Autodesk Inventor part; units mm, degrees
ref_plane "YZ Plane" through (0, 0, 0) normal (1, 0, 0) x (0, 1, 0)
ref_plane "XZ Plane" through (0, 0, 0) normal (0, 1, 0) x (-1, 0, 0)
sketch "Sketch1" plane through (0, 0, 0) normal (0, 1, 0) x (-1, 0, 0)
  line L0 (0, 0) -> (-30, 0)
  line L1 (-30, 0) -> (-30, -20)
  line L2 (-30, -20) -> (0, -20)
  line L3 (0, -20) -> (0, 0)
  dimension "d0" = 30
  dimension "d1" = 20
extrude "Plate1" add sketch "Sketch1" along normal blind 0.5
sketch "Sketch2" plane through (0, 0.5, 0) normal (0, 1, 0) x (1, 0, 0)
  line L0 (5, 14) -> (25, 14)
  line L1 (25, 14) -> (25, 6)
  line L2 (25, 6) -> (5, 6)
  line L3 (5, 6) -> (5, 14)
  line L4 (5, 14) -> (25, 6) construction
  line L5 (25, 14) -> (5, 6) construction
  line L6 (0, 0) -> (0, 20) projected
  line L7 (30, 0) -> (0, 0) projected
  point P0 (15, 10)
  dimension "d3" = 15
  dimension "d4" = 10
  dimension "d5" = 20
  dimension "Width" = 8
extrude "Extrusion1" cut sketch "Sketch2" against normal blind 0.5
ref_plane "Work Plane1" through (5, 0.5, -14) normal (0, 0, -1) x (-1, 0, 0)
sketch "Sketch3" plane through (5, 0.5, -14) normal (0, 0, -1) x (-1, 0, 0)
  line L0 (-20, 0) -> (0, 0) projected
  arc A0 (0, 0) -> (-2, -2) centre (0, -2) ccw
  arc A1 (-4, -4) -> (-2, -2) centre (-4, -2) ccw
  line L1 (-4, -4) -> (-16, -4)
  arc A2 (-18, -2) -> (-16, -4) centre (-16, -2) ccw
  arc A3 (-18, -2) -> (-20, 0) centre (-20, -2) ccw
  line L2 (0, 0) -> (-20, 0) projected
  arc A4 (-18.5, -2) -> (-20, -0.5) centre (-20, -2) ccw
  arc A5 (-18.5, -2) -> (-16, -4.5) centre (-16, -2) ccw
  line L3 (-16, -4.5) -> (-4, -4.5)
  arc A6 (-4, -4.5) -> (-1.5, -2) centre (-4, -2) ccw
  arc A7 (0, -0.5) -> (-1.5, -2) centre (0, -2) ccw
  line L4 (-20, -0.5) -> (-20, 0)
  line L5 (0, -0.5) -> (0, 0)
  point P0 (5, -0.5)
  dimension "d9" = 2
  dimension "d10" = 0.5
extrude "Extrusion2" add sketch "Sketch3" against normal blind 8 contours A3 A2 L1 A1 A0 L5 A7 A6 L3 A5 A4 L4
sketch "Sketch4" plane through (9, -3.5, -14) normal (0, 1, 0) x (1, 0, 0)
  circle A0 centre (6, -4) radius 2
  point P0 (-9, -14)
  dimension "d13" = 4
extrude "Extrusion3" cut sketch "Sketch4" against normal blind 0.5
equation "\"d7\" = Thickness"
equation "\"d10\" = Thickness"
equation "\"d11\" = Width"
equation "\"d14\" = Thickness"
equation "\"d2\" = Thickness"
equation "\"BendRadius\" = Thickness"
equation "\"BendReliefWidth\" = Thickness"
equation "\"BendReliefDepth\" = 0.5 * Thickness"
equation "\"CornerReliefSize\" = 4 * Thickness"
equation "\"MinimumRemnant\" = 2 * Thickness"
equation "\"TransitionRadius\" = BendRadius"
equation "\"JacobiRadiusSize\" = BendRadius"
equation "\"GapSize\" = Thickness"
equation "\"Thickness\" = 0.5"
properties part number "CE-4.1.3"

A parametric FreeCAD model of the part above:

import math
import FreeCAD as App
import Part
import Sketcher
from FreeCAD import Vector

doc = App.newDocument("Part")
body = doc.addObject("PartDesign::Body", "Body")

# Sketch on XZ plane
sketch1 = body.newObject("Sketcher::SketchObject", "Sketch")
sketch1.AttachmentSupport = (doc.getObject("XZ_Plane"), [""])
sketch1.MapMode = "FlatFace"
sketch1.addGeometry([
    Part.LineSegment(Vector(0, -20, 0), Vector(0, 0, 0)),
    Part.LineSegment(Vector(0, 0, 0), Vector(30, 0, 0)),
    Part.LineSegment(Vector(30, 0, 0), Vector(30, -20, 0)),
    Part.LineSegment(Vector(30, -20, 0), Vector(0, -20, 0)),
], False)
sketch1.addConstraint([
    Sketcher.Constraint("Coincident", 0, 2, 1, 1),
    Sketcher.Constraint("Coincident", 1, 2, 2, 1),
    Sketcher.Constraint("Coincident", 2, 2, 3, 1),
    Sketcher.Constraint("Coincident", 3, 2, 0, 1),
    Sketcher.Constraint("Vertical", 0),
    Sketcher.Constraint("Horizontal", 1),
    Sketcher.Constraint("Vertical", 2),
    Sketcher.Constraint("Horizontal", 3),
    Sketcher.Constraint("Coincident", 0, 2, -1, 1),
    Sketcher.Constraint("DistanceX", 1, 1, 1, 2, 30.0),
    Sketcher.Constraint("DistanceY", 0, 1, 0, 2, 20.0),
])
pad1 = body.newObject("PartDesign::Pad", "Pad")
pad1.Profile = sketch1
pad1.Length = 0.5
pad1.Reversed = True

# Sketch on XZ plane
sketch2 = body.newObject("Sketcher::SketchObject", "Sketch001")
sketch2.AttachmentSupport = (doc.getObject("XZ_Plane"), [""])
sketch2.MapMode = "FlatFace"
sketch2.AttachmentOffset = App.Placement(Vector(0, 0, -0.5), App.Rotation())
sketch2.addGeometry([
    Part.LineSegment(Vector(25, -14, 0), Vector(5, -14, 0)),
    Part.LineSegment(Vector(5, -14, 0), Vector(5, -6, 0)),
    Part.LineSegment(Vector(5, -6, 0), Vector(25, -6, 0)),
    Part.LineSegment(Vector(25, -6, 0), Vector(25, -14, 0)),
], False)
sketch2.addConstraint([
    Sketcher.Constraint("Coincident", 0, 2, 1, 1),
    Sketcher.Constraint("Coincident", 1, 2, 2, 1),
    Sketcher.Constraint("Coincident", 2, 2, 3, 1),
    Sketcher.Constraint("Coincident", 3, 2, 0, 1),
    Sketcher.Constraint("Horizontal", 0),
    Sketcher.Constraint("Vertical", 1),
    Sketcher.Constraint("Horizontal", 2),
    Sketcher.Constraint("Vertical", 3),
    Sketcher.Constraint("DistanceX", 0, 2, 0, 1, 20.0),
    Sketcher.Constraint("DistanceY", 1, 1, 1, 2, 8.0),
    Sketcher.Constraint("DistanceX", -1, 1, 0, 2, 5.0),
    Sketcher.Constraint("DistanceY", 0, 2, -1, 1, 14.0),
])
pocket1 = body.newObject("PartDesign::Pocket", "Pocket")
pocket1.Profile = sketch2
pocket1.Length = 0.5
pocket1.Reversed = True

# Sketch on XY plane
sketch3 = body.newObject("Sketcher::SketchObject", "Sketch002")
sketch3.AttachmentSupport = (doc.getObject("XY_Plane"), [""])
sketch3.MapMode = "FlatFace"
sketch3.AttachmentOffset = App.Placement(Vector(0, 0, -14), App.Rotation())
sketch3.addGeometry([
    Part.ArcOfCircle(Part.Circle(Vector(25, -1.5, 0), Vector(0, 0, 1), 2), math.radians(90), math.radians(180)),  # 0
    Part.LineSegment(Vector(25, 0.5, 0), Vector(25, 0, 0)),  # 1
    Part.ArcOfCircle(Part.Circle(Vector(25, -1.5, 0), Vector(0, 0, 1), 1.5), math.radians(90), math.radians(180)),  # 2
    Part.ArcOfCircle(Part.Circle(Vector(21, -1.5, 0), Vector(0, 0, 1), 2.5), math.radians(-90), math.radians(0)),  # 3
    Part.LineSegment(Vector(21, -4, 0), Vector(9, -4, 0)),  # 4
    Part.ArcOfCircle(Part.Circle(Vector(9, -1.5, 0), Vector(0, 0, 1), 2.5), math.radians(180), math.radians(270)),  # 5
    Part.ArcOfCircle(Part.Circle(Vector(5, -1.5, 0), Vector(0, 0, 1), 1.5), math.radians(0), math.radians(90)),  # 6
    Part.LineSegment(Vector(5, 0, 0), Vector(5, 0.5, 0)),  # 7
    Part.ArcOfCircle(Part.Circle(Vector(5, -1.5, 0), Vector(0, 0, 1), 2), math.radians(0), math.radians(90)),  # 8
    Part.ArcOfCircle(Part.Circle(Vector(9, -1.5, 0), Vector(0, 0, 1), 2), math.radians(180), math.radians(270)),  # 9
    Part.LineSegment(Vector(9, -3.5, 0), Vector(21, -3.5, 0)),  # 10
    Part.ArcOfCircle(Part.Circle(Vector(21, -1.5, 0), Vector(0, 0, 1), 2), math.radians(-90), math.radians(0)),  # 11
], False)
sketch3.addConstraint([
    Sketcher.Constraint("Coincident", 0, 1, 1, 1),
    Sketcher.Constraint("Coincident", 1, 2, 2, 1),
    Sketcher.Constraint("Tangent", 2, 2, 3, 2),
    Sketcher.Constraint("Tangent", 3, 1, 4, 1),
    Sketcher.Constraint("Tangent", 4, 2, 5, 2),
    Sketcher.Constraint("Tangent", 5, 1, 6, 1),
    Sketcher.Constraint("Coincident", 6, 2, 7, 1),
    Sketcher.Constraint("Coincident", 7, 2, 8, 2),
    Sketcher.Constraint("Tangent", 8, 1, 9, 1),
    Sketcher.Constraint("Tangent", 9, 2, 10, 1),
    Sketcher.Constraint("Tangent", 10, 2, 11, 1),
    Sketcher.Constraint("Tangent", 11, 2, 0, 2),
    Sketcher.Constraint("Vertical", 1),
    Sketcher.Constraint("Horizontal", 4),
    Sketcher.Constraint("Vertical", 7),
    Sketcher.Constraint("Horizontal", 10),
    Sketcher.Constraint("Coincident", 2, 3, 0, 3),
    Sketcher.Constraint("Coincident", 8, 3, 6, 3),
    Sketcher.Constraint("Coincident", 9, 3, 5, 3),
    Sketcher.Constraint("Coincident", 11, 3, 3, 3),
    Sketcher.Constraint("Equal", 3, 5),
    Sketcher.Constraint("Equal", 2, 6),
    Sketcher.Constraint("Equal", 8, 9),
    Sketcher.Constraint("PointOnObject", 1, 2, -1),
    Sketcher.Constraint("PointOnObject", 6, 2, -1),
    Sketcher.Constraint("Horizontal", 2, 3, 3, 3),
    Sketcher.Constraint("Vertical", 2, 3, 0, 1),
    Sketcher.Constraint("Vertical", 8, 3, 6, 2),
    Sketcher.Constraint("Radius", 0, 2.0),
    Sketcher.Constraint("DistanceY", 1, 2, 1, 1, 0.5),
    Sketcher.Constraint("DistanceX", 4, 2, 4, 1, 12.0),
    Sketcher.Constraint("DistanceX", -1, 1, 0, 3, 25.0),
])
pad2 = body.newObject("PartDesign::Pad", "Pad001")
pad2.Profile = sketch3
pad2.Length = 8

# Sketch on XZ plane
sketch4 = body.newObject("Sketcher::SketchObject", "Sketch003")
sketch4.AttachmentSupport = (doc.getObject("XZ_Plane"), [""])
sketch4.MapMode = "FlatFace"
sketch4.AttachmentOffset = App.Placement(Vector(0, 0, 3.5), App.Rotation())
sketch4.addGeometry(Part.Circle(Vector(15, -10, 0), Vector(0, 0, 1), 2), False)
sketch4.addConstraint([
    Sketcher.Constraint("Diameter", 0, 4.0),
    Sketcher.Constraint("DistanceX", -1, 1, 0, 3, 15.0),
    Sketcher.Constraint("DistanceY", 0, 3, -1, 1, 10.0),
])
pocket2 = body.newObject("PartDesign::Pocket", "Pocket001")
pocket2.Profile = sketch4
pocket2.Length = 0.5
pocket2.Reversed = True

doc.recompute()
